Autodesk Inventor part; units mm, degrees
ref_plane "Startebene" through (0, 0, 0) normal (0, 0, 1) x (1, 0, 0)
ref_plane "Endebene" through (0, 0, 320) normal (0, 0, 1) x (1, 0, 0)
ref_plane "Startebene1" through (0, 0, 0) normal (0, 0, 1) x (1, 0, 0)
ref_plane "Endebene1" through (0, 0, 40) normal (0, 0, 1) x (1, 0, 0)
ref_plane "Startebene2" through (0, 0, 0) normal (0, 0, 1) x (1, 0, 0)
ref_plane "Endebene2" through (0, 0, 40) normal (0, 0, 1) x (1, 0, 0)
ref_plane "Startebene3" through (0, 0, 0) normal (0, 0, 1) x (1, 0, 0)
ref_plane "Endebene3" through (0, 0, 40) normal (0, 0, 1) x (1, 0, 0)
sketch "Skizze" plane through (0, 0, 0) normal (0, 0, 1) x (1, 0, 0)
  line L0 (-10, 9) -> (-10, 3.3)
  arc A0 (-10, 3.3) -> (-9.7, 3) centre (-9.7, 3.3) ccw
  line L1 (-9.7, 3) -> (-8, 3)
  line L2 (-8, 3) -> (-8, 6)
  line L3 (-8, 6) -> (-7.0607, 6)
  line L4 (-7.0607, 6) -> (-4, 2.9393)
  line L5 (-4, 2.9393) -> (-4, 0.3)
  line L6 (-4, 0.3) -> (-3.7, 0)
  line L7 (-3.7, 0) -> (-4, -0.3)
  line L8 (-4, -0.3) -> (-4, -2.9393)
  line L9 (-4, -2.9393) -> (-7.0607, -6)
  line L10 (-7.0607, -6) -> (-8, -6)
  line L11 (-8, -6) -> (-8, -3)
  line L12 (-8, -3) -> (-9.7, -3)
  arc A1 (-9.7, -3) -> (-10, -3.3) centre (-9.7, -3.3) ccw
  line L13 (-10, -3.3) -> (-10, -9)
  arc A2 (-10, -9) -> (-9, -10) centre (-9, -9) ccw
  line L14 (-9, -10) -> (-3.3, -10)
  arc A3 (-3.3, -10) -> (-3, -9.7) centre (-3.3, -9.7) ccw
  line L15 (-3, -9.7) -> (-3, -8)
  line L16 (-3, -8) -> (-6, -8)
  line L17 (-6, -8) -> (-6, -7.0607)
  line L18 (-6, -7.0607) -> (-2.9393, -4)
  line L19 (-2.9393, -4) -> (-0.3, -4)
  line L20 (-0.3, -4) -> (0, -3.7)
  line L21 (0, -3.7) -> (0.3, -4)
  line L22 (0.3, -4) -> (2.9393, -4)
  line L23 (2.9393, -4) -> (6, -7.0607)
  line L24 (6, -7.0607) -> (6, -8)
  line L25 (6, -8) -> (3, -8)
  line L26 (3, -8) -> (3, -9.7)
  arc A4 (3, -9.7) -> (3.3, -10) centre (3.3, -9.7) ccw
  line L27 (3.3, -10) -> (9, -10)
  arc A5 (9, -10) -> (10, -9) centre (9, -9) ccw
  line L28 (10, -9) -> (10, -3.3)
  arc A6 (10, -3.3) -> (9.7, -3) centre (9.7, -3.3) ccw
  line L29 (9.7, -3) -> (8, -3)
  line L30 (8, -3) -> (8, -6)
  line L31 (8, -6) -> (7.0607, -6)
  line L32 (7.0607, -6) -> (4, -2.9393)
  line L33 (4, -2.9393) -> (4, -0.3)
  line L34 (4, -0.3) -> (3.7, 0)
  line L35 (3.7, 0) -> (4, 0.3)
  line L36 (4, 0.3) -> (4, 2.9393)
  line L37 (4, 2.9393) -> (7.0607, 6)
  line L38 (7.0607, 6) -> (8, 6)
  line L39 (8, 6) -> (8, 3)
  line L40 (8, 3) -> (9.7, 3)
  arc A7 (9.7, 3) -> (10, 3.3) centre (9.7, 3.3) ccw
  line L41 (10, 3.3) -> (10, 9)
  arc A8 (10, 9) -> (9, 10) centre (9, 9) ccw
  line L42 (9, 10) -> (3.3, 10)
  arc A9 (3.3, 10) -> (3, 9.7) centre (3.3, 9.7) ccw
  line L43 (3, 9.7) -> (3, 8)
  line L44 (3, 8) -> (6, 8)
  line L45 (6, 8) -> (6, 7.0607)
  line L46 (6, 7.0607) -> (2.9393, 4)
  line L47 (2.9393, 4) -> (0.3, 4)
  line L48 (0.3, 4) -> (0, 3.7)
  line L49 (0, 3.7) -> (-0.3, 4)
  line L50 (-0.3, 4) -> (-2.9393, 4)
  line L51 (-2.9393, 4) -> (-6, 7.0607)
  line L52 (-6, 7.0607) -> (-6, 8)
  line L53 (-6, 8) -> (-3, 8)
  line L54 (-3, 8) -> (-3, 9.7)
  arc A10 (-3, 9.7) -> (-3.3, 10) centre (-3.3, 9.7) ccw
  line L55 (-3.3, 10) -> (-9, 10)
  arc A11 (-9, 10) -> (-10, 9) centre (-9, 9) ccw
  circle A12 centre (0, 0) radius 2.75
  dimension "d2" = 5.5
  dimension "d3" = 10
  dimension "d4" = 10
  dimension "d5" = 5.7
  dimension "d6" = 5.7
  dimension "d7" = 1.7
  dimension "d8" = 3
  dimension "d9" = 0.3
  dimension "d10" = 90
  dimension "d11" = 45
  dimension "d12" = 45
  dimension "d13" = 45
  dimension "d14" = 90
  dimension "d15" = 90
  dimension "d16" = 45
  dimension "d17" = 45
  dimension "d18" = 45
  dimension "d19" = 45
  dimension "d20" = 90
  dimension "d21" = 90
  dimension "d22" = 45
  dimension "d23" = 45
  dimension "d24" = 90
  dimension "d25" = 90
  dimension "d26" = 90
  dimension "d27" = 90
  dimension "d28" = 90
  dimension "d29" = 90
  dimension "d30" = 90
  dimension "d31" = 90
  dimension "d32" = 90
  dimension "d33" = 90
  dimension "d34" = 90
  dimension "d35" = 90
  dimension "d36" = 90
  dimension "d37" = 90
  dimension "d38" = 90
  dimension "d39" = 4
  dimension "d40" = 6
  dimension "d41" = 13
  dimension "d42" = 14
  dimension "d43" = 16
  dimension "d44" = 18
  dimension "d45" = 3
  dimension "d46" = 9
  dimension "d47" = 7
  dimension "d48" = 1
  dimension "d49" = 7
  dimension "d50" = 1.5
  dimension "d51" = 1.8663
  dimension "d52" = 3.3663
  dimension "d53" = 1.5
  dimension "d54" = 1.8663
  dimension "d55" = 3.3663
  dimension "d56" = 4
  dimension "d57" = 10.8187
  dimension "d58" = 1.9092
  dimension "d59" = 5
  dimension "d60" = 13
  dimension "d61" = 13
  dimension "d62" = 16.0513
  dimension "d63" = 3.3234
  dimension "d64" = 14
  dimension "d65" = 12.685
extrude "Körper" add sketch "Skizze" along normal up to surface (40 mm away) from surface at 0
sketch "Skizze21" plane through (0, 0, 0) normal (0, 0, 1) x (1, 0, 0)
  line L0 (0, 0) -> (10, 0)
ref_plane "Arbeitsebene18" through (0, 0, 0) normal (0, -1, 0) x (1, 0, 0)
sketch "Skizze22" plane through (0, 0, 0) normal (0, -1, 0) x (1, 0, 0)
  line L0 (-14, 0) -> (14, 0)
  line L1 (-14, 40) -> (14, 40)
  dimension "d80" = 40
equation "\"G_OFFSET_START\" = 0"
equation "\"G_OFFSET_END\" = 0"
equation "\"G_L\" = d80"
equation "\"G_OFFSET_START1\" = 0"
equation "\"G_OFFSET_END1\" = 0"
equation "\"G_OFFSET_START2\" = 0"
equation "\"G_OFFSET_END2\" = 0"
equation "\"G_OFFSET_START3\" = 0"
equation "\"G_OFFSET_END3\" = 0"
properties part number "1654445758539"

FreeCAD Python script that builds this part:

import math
import FreeCAD as App
import Part
import Sketcher
from FreeCAD import Vector

doc = App.newDocument("Part")
body = doc.addObject("PartDesign::Body", "Body")

# Sketch on XY plane
sketch1 = body.newObject("Sketcher::SketchObject", "Sketch")
sketch1.AttachmentSupport = (doc.getObject("XY_Plane"), [""])
sketch1.MapMode = "FlatFace"
sketch1.addGeometry([
    Part.ArcOfCircle(Part.Circle(Vector(-9, 9, 0), Vector(0, 0, 1), 1), math.radians(90), math.radians(180)),  # 0
    Part.LineSegment(Vector(-10, 9, 0), Vector(-10, 3.3, 0)),  # 1
    Part.ArcOfCircle(Part.Circle(Vector(-9.7, 3.3, 0), Vector(0, 0, 1), 0.3), math.radians(180), math.radians(270)),  # 2
    Part.LineSegment(Vector(-9.7, 3, 0), Vector(-8, 3, 0)),  # 3
    Part.LineSegment(Vector(-8, 3, 0), Vector(-8, 6, 0)),  # 4
    Part.LineSegment(Vector(-8, 6, 0), Vector(-7.06, 6, 0)),  # 5
    Part.LineSegment(Vector(-7.06, 6, 0), Vector(-4, 2.94, 0)),  # 6
    Part.LineSegment(Vector(-4, 2.94, 0), Vector(-4, 0.3, 0)),  # 7
    Part.LineSegment(Vector(-4, 0.3, 0), Vector(-3.7, 0, 0)),  # 8
    Part.LineSegment(Vector(-3.7, 0, 0), Vector(-4, -0.3, 0)),  # 9
    Part.LineSegment(Vector(-4, -0.3, 0), Vector(-4, -2.94, 0)),  # 10
    Part.LineSegment(Vector(-4, -2.94, 0), Vector(-7.06, -6, 0)),  # 11
    Part.LineSegment(Vector(-7.06, -6, 0), Vector(-8, -6, 0)),  # 12
    Part.LineSegment(Vector(-8, -6, 0), Vector(-8, -3, 0)),  # 13
    Part.LineSegment(Vector(-8, -3, 0), Vector(-9.7, -3, 0)),  # 14
    Part.ArcOfCircle(Part.Circle(Vector(-9.7, -3.3, 0), Vector(0, 0, 1), 0.3), math.radians(90), math.radians(180)),  # 15
    Part.LineSegment(Vector(-10, -3.3, 0), Vector(-10, -9, 0)),  # 16
    Part.ArcOfCircle(Part.Circle(Vector(-9, -9, 0), Vector(0, 0, 1), 1), math.radians(180), math.radians(270)),  # 17
    Part.LineSegment(Vector(-9, -10, 0), Vector(-3.3, -10, 0)),  # 18
    Part.ArcOfCircle(Part.Circle(Vector(-3.3, -9.7, 0), Vector(0, 0, 1), 0.3), math.radians(-90), math.radians(0)),  # 19
    Part.LineSegment(Vector(-3, -9.7, 0), Vector(-3, -8, 0)),  # 20
    Part.LineSegment(Vector(-3, -8, 0), Vector(-6, -8, 0)),  # 21
    Part.LineSegment(Vector(-6, -8, 0), Vector(-6, -7.06, 0)),  # 22
    Part.LineSegment(Vector(-6, -7.06, 0), Vector(-2.94, -4, 0)),  # 23
    Part.LineSegment(Vector(-2.94, -4, 0), Vector(-0.3, -4, 0)),  # 24
    Part.LineSegment(Vector(-0.3, -4, 0), Vector(0, -3.7, 0)),  # 25
    Part.LineSegment(Vector(0, -3.7, 0), Vector(0.3, -4, 0)),  # 26
    Part.LineSegment(Vector(0.3, -4, 0), Vector(2.94, -4, 0)),  # 27
    Part.LineSegment(Vector(2.94, -4, 0), Vector(6, -7.06, 0)),  # 28
    Part.LineSegment(Vector(6, -7.06, 0), Vector(6, -8, 0)),  # 29
    Part.LineSegment(Vector(6, -8, 0), Vector(3, -8, 0)),  # 30
    Part.LineSegment(Vector(3, -8, 0), Vector(3, -9.7, 0)),  # 31
    Part.ArcOfCircle(Part.Circle(Vector(3.3, -9.7, 0), Vector(0, 0, 1), 0.3), math.radians(180), math.radians(270)),  # 32
    Part.LineSegment(Vector(3.3, -10, 0), Vector(9, -10, 0)),  # 33
    Part.ArcOfCircle(Part.Circle(Vector(9, -9, 0), Vector(0, 0, 1), 1), math.radians(-90), math.radians(0)),  # 34
    Part.LineSegment(Vector(10, -9, 0), Vector(10, -3.3, 0)),  # 35
    Part.ArcOfCircle(Part.Circle(Vector(9.7, -3.3, 0), Vector(0, 0, 1), 0.3), math.radians(0), math.radians(90)),  # 36
    Part.LineSegment(Vector(9.7, -3, 0), Vector(8, -3, 0)),  # 37
    Part.LineSegment(Vector(8, -3, 0), Vector(8, -6, 0)),  # 38
    Part.LineSegment(Vector(8, -6, 0), Vector(7.06, -6, 0)),  # 39
    Part.LineSegment(Vector(7.06, -6, 0), Vector(4, -2.94, 0)),  # 40
    Part.LineSegment(Vector(4, -2.94, 0), Vector(4, -0.3, 0)),  # 41
    Part.LineSegment(Vector(4, -0.3, 0), Vector(3.7, 0, 0)),  # 42
    Part.LineSegment(Vector(3.7, 0, 0), Vector(4, 0.3, 0)),  # 43
    Part.LineSegment(Vector(4, 0.3, 0), Vector(4, 2.94, 0)),  # 44
    Part.LineSegment(Vector(4, 2.94, 0), Vector(7.06, 6, 0)),  # 45
    Part.LineSegment(Vector(7.06, 6, 0), Vector(8, 6, 0)),  # 46
    Part.LineSegment(Vector(8, 6, 0), Vector(8, 3, 0)),  # 47
    Part.LineSegment(Vector(8, 3, 0), Vector(9.7, 3, 0)),  # 48
    Part.ArcOfCircle(Part.Circle(Vector(9.7, 3.3, 0), Vector(0, 0, 1), 0.3), math.radians(-90), math.radians(0)),  # 49
    Part.LineSegment(Vector(10, 3.3, 0), Vector(10, 9, 0)),  # 50
    Part.ArcOfCircle(Part.Circle(Vector(9, 9, 0), Vector(0, 0, 1), 1), math.radians(0), math.radians(90)),  # 51
    Part.LineSegment(Vector(9, 10, 0), Vector(3.3, 10, 0)),  # 52
    Part.ArcOfCircle(Part.Circle(Vector(3.3, 9.7, 0), Vector(0, 0, 1), 0.3), math.radians(90), math.radians(180)),  # 53
    Part.LineSegment(Vector(3, 9.7, 0), Vector(3, 8, 0)),  # 54
    Part.LineSegment(Vector(3, 8, 0), Vector(6, 8, 0)),  # 55
    Part.LineSegment(Vector(6, 8, 0), Vector(6, 7.06, 0)),  # 56
    Part.LineSegment(Vector(6, 7.06, 0), Vector(2.94, 4, 0)),  # 57
    Part.LineSegment(Vector(2.94, 4, 0), Vector(0.3, 4, 0)),  # 58
    Part.LineSegment(Vector(0.3, 4, 0), Vector(0, 3.7, 0)),  # 59
    Part.LineSegment(Vector(0, 3.7, 0), Vector(-0.3, 4, 0)),  # 60
    Part.LineSegment(Vector(-0.3, 4, 0), Vector(-2.94, 4, 0)),  # 61
    Part.LineSegment(Vector(-2.94, 4, 0), Vector(-6, 7.06, 0)),  # 62
    Part.LineSegment(Vector(-6, 7.06, 0), Vector(-6, 8, 0)),  # 63
    Part.LineSegment(Vector(-6, 8, 0), Vector(-3, 8, 0)),  # 64
    Part.LineSegment(Vector(-3, 8, 0), Vector(-3, 9.7, 0)),  # 65
    Part.ArcOfCircle(Part.Circle(Vector(-3.3, 9.7, 0), Vector(0, 0, 1), 0.3), math.radians(0), math.radians(90)),  # 66
    Part.LineSegment(Vector(-3.3, 10, 0), Vector(-9, 10, 0)),  # 67
    Part.Circle(Vector(0, 0, 0), Vector(0, 0, 1), 2.75),  # 68
], False)
sketch1.addConstraint([
    Sketcher.Constraint("Tangent", 0, 2, 1, 1),
    Sketcher.Constraint("Tangent", 1, 2, 2, 1),
    Sketcher.Constraint("Tangent", 2, 2, 3, 1),
    Sketcher.Constraint("Coincident", 3, 2, 4, 1),
    Sketcher.Constraint("Coincident", 4, 2, 5, 1),
    Sketcher.Constraint("Coincident", 5, 2, 6, 1),
    Sketcher.Constraint("Coincident", 6, 2, 7, 1),
    Sketcher.Constraint("Coincident", 7, 2, 8, 1),
    Sketcher.Constraint("Coincident", 8, 2, 9, 1),
    Sketcher.Constraint("Coincident", 9, 2, 10, 1),
    Sketcher.Constraint("Coincident", 10, 2, 11, 1),
    Sketcher.Constraint("Coincident", 11, 2, 12, 1),
    Sketcher.Constraint("Coincident", 12, 2, 13, 1),
    Sketcher.Constraint("Coincident", 13, 2, 14, 1),
    Sketcher.Constraint("Tangent", 14, 2, 15, 1),
    Sketcher.Constraint("Tangent", 15, 2, 16, 1),
    Sketcher.Constraint("Tangent", 16, 2, 17, 1),
    Sketcher.Constraint("Tangent", 17, 2, 18, 1),
    Sketcher.Constraint("Tangent", 18, 2, 19, 1),
    Sketcher.Constraint("Tangent", 19, 2, 20, 1),
    Sketcher.Constraint("Coincident", 20, 2, 21, 1),
    Sketcher.Constraint("Coincident", 21, 2, 22, 1),
    Sketcher.Constraint("Coincident", 22, 2, 23, 1),
    Sketcher.Constraint("Coincident", 23, 2, 24, 1),
    Sketcher.Constraint("Coincident", 24, 2, 25, 1),
    Sketcher.Constraint("Coincident", 25, 2, 26, 1),
    Sketcher.Constraint("Coincident", 26, 2, 27, 1),
    Sketcher.Constraint("Coincident", 27, 2, 28, 1),
    Sketcher.Constraint("Coincident", 28, 2, 29, 1),
    Sketcher.Constraint("Coincident", 29, 2, 30, 1),
    Sketcher.Constraint("Coincident", 30, 2, 31, 1),
    Sketcher.Constraint("Tangent", 31, 2, 32, 1),
    Sketcher.Constraint("Tangent", 32, 2, 33, 1),
    Sketcher.Constraint("Tangent", 33, 2, 34, 1),
    Sketcher.Constraint("Tangent", 34, 2, 35, 1),
    Sketcher.Constraint("Tangent", 35, 2, 36, 1),
    Sketcher.Constraint("Tangent", 36, 2, 37, 1),
    Sketcher.Constraint("Coincident", 37, 2, 38, 1),
    Sketcher.Constraint("Coincident", 38, 2, 39, 1),
    Sketcher.Constraint("Coincident", 39, 2, 40, 1),
    Sketcher.Constraint("Coincident", 40, 2, 41, 1),
    Sketcher.Constraint("Coincident", 41, 2, 42, 1),
    Sketcher.Constraint("Coincident", 42, 2, 43, 1),
    Sketcher.Constraint("Coincident", 43, 2, 44, 1),
    Sketcher.Constraint("Coincident", 44, 2, 45, 1),
    Sketcher.Constraint("Coincident", 45, 2, 46, 1),
    Sketcher.Constraint("Coincident", 46, 2, 47, 1),
    Sketcher.Constraint("Coincident", 47, 2, 48, 1),
    Sketcher.Constraint("Tangent", 48, 2, 49, 1),
    Sketcher.Constraint("Tangent", 49, 2, 50, 1),
    Sketcher.Constraint("Tangent", 50, 2, 51, 1),
    Sketcher.Constraint("Tangent", 51, 2, 52, 1),
    Sketcher.Constraint("Tangent", 52, 2, 53, 1),
    Sketcher.Constraint("Tangent", 53, 2, 54, 1),
    Sketcher.Constraint("Coincident", 54, 2, 55, 1),
    Sketcher.Constraint("Coincident", 55, 2, 56, 1),
    Sketcher.Constraint("Coincident", 56, 2, 57, 1),
    Sketcher.Constraint("Coincident", 57, 2, 58, 1),
    Sketcher.Constraint("Coincident", 58, 2, 59, 1),
    Sketcher.Constraint("Coincident", 59, 2, 60, 1),
    Sketcher.Constraint("Coincident", 60, 2, 61, 1),
    Sketcher.Constraint("Coincident", 61, 2, 62, 1),
    Sketcher.Constraint("Coincident", 62, 2, 63, 1),
    Sketcher.Constraint("Coincident", 63, 2, 64, 1),
    Sketcher.Constraint("Coincident", 64, 2, 65, 1),
    Sketcher.Constraint("Tangent", 65, 2, 66, 1),
    Sketcher.Constraint("Tangent", 66, 2, 67, 1),
    Sketcher.Constraint("Tangent", 67, 2, 0, 1),
    Sketcher.Constraint("Vertical", 1),
    Sketcher.Constraint("Horizontal", 3),
    Sketcher.Constraint("Vertical", 4),
    Sketcher.Constraint("Horizontal", 5),
    Sketcher.Constraint("Vertical", 7),
    Sketcher.Constraint("Vertical", 10),
    Sketcher.Constraint("Horizontal", 12),
    Sketcher.Constraint("Vertical", 13),
    Sketcher.Constraint("Horizontal", 14),
    Sketcher.Constraint("Vertical", 16),
    Sketcher.Constraint("Horizontal", 18),
    Sketcher.Constraint("Vertical", 20),
    Sketcher.Constraint("Horizontal", 21),
    Sketcher.Constraint("Vertical", 22),
    Sketcher.Constraint("Horizontal", 24),
    Sketcher.Constraint("Horizontal", 27),
    Sketcher.Constraint("Vertical", 29),
    Sketcher.Constraint("Horizontal", 30),
    Sketcher.Constraint("Vertical", 31),
    Sketcher.Constraint("Horizontal", 33),
    Sketcher.Constraint("Vertical", 35),
    Sketcher.Constraint("Horizontal", 37),
    Sketcher.Constraint("Vertical", 38),
    Sketcher.Constraint("Horizontal", 39),
    Sketcher.Constraint("Vertical", 41),
    Sketcher.Constraint("Vertical", 44),
    Sketcher.Constraint("Horizontal", 46),
    Sketcher.Constraint("Vertical", 47),
    Sketcher.Constraint("Horizontal", 48),
    Sketcher.Constraint("Vertical", 50),
    Sketcher.Constraint("Horizontal", 52),
    Sketcher.Constraint("Vertical", 54),
    Sketcher.Constraint("Horizontal", 55),
    Sketcher.Constraint("Vertical", 56),
    Sketcher.Constraint("Horizontal", 58),
    Sketcher.Constraint("Horizontal", 61),
    Sketcher.Constraint("Vertical", 63),
    Sketcher.Constraint("Horizontal", 64),
    Sketcher.Constraint("Vertical", 65),
    Sketcher.Constraint("Horizontal", 67),
    Sketcher.Constraint("Coincident", 68, 3, -1, 1),
    Sketcher.Constraint("Equal", 2, 15),
    Sketcher.Constraint("Equal", 0, 17),
    Sketcher.Constraint("Equal", 15, 19),
    Sketcher.Constraint("Equal", 19, 32),
    Sketcher.Constraint("Equal", 17, 34),
    Sketcher.Constraint("Equal", 32, 36),
    Sketcher.Constraint("Equal", 36, 49),
    Sketcher.Constraint("Equal", 34, 51),
    Sketcher.Constraint("Equal", 49, 53),
    Sketcher.Constraint("Equal", 53, 66),
    Sketcher.Constraint("Symmetric", 0, 3, 34, 3, -1, 1),
    Sketcher.Constraint("Symmetric", 15, 3, 49, 3, -1, 1),
    Sketcher.Constraint("Symmetric", 19, 3, 53, 3, -1, 1),
    Sketcher.Constraint("Symmetric", 3, 2, 37, 2, -1, 1),
    Sketcher.Constraint("Symmetric", 5, 2, 39, 2, -1, 1),
    Sketcher.Constraint("Symmetric", 6, 2, 40, 2, -1, 1),
    Sketcher.Constraint("Symmetric", 8, 2, 42, 2, -1, 1),
    Sketcher.Constraint("Symmetric", 9, 2, 43, 2, -1, 1),
    Sketcher.Constraint("Symmetric", 11, 2, 45, 2, -1, 1),
    Sketcher.Constraint("Symmetric", 21, 2, 55, 2, -1, 1),
    Sketcher.Constraint("Symmetric", 23, 2, 57, 2, -1, 1),
    Sketcher.Constraint("Symmetric", 25, 2, 59, 2, -1, 1),
    Sketcher.Constraint("Symmetric", 26, 2, 60, 2, -1, 1),
    Sketcher.Constraint("Symmetric", 28, 2, 62, 2, -1, 1),
    Sketcher.Constraint("Symmetric", 30, 2, 64, 2, -1, 1),
    Sketcher.Constraint("Symmetric", 19, 3, 32, 3, -2),
    Sketcher.Constraint("Symmetric", 15, 3, 36, 3, -2),
    Sketcher.Constraint("Symmetric", 24, 2, 26, 2, -2),
    Sketcher.Constraint("Symmetric", 22, 2, 28, 2, -2),
    Sketcher.Constraint("Symmetric", 12, 2, 38, 2, -2),
    Sketcher.Constraint("Symmetric", 10, 2, 40, 2, -2),
    Sketcher.Constraint("PointOnObject", 8, 2, -1),
    Sketcher.Constraint("PointOnObject", 25, 2, -2),
    Sketcher.Constraint("Parallel", 6, 8),
    Sketcher.Constraint("Perpendicular", 8, 9),
    Sketcher.Constraint("Parallel", 9, 11),
    Sketcher.Constraint("Parallel", 11, 23),
    Sketcher.Constraint("Parallel", 23, 25),
    Sketcher.Constraint("Perpendicular", 25, 26),
    Sketcher.Constraint("Parallel", 26, 28),
    Sketcher.Constraint("Parallel", 40, 42),
    Sketcher.Constraint("Parallel", 43, 45),
    Sketcher.Constraint("Parallel", 45, 57),
    Sketcher.Constraint("Parallel", 57, 59),
    Sketcher.Constraint("Parallel", 60, 62),
    Sketcher.Constraint("Horizontal", 21, 2, 29, 2),
    Sketcher.Constraint("Vertical", 38, 2, 46, 2),
    Sketcher.Constraint("Equal", 67, 1),
    Sketcher.Constraint("Equal", 64, 4),
    Sketcher.Constraint("Equal", 61, 7),
    Sketcher.Constraint("Equal", 48, 20),
    Sketcher.Constraint("Equal", 46, 22),
    Sketcher.Constraint("Equal", 11, 23),
    Sketcher.Constraint("Equal", 9, 25),
    Sketcher.Constraint("Radius", 0, 1.0),
    Sketcher.Constraint("Diameter", 68, 5.5),
    Sketcher.Constraint("Radius", 2, 0.3),
    Sketcher.Constraint("DistanceX", 21, 2, 21, 1, 3.0),
    Sketcher.Constraint("DistanceX", 3, 1, 3, 2, 1.7),
    Sketcher.Constraint("DistanceX", 18, 1, 18, 2, 5.7),
    Sketcher.Constraint("DistanceX", 0, 3, -1, 1, 9.0),
    Sketcher.Constraint("DistanceX", 6, 2, -1, 1, 4.0),
    Sketcher.Constraint("DistanceY", -1, 1, 7, 2, 0.3),
    Sketcher.Constraint("DistanceX", 5, 1, 5, 2, 0.9393),
])
pad1 = body.newObject("PartDesign::Pad", "Pad")
pad1.Profile = sketch1
pad1.Length = 40

doc.recompute()
